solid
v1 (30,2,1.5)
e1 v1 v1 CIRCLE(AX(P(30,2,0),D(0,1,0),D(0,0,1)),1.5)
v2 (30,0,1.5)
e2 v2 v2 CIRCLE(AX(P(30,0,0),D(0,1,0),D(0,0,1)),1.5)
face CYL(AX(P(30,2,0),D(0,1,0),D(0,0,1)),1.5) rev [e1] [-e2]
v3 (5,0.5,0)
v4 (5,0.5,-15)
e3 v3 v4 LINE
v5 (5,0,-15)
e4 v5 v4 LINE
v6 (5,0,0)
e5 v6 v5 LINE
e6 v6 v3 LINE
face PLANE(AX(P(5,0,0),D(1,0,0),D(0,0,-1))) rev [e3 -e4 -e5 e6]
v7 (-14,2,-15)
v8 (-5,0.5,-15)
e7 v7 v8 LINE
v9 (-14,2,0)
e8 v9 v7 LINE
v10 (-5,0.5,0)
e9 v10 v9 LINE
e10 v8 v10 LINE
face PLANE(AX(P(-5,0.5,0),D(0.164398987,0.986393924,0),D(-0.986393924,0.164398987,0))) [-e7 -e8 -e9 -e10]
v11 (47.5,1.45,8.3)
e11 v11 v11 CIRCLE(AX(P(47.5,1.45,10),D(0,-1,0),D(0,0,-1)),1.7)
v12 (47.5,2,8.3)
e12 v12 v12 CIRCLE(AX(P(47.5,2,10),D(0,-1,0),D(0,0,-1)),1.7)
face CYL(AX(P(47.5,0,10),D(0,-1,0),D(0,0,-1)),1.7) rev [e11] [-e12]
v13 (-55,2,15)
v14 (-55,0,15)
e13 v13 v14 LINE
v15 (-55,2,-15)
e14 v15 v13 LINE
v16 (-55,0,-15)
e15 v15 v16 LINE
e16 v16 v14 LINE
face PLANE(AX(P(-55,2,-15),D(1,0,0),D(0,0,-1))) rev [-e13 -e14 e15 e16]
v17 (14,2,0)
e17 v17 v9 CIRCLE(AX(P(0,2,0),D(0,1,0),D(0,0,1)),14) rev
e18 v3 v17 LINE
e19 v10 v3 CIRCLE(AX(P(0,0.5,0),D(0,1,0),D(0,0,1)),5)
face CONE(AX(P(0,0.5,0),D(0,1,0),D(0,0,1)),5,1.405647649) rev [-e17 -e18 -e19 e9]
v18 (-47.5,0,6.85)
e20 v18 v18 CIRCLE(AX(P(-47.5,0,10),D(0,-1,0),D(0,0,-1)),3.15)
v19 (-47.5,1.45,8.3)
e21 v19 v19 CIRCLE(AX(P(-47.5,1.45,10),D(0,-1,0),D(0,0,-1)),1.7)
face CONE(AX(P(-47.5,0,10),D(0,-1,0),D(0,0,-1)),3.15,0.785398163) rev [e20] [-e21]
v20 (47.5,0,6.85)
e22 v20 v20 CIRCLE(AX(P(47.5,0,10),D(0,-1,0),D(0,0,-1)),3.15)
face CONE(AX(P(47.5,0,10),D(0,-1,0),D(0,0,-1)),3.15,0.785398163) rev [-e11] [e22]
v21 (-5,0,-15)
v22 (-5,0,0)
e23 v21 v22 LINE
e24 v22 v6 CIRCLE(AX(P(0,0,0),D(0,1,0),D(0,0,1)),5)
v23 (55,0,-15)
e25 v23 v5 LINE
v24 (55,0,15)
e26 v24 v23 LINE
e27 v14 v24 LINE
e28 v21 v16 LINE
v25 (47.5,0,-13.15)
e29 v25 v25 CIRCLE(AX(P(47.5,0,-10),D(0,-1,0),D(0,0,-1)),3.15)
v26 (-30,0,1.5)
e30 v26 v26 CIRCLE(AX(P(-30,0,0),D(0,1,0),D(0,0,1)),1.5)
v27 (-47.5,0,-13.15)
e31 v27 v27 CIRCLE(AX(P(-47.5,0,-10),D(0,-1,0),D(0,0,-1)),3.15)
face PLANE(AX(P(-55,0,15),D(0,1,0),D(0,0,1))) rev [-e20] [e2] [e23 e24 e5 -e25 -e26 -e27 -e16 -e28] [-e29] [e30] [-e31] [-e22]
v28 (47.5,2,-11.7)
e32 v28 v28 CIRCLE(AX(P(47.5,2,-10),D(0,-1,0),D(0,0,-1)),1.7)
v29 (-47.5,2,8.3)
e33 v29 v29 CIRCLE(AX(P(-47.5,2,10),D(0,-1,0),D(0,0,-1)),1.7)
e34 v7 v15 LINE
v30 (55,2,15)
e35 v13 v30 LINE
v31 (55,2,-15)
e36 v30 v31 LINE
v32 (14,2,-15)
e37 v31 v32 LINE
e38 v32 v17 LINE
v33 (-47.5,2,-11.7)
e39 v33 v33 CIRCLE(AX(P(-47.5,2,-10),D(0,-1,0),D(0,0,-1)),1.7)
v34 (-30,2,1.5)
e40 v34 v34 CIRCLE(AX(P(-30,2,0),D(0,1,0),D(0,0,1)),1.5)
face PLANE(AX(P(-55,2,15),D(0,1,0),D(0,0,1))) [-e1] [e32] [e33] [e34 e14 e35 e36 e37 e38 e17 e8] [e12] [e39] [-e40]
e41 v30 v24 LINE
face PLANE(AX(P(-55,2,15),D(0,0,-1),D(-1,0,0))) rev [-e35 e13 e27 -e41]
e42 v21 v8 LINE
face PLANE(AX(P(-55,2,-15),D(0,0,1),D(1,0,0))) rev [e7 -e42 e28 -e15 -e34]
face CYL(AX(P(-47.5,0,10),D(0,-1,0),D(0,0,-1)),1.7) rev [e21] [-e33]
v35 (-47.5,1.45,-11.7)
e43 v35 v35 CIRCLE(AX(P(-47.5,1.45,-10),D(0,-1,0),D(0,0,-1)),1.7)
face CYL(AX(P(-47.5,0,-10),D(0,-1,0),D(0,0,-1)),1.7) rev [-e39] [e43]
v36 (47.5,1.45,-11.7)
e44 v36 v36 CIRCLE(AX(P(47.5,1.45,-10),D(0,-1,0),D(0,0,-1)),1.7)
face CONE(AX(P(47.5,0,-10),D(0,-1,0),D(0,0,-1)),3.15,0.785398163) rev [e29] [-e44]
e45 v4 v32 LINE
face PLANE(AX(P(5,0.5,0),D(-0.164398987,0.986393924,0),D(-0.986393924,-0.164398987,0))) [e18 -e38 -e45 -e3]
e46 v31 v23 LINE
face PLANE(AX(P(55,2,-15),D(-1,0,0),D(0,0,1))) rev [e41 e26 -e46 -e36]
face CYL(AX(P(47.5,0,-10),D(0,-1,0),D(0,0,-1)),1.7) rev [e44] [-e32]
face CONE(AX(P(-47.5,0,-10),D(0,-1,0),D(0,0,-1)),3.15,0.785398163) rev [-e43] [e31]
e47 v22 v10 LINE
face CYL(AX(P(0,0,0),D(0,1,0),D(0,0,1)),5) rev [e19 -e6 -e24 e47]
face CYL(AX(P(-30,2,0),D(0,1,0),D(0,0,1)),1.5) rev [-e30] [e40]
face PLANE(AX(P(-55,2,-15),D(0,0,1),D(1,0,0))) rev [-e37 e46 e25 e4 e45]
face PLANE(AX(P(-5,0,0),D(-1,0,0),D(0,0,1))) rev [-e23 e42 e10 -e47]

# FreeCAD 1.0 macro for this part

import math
import FreeCAD as App
import Part
import Sketcher
Q = App.Units.Quantity


def edges_at(feature, points):
    """Names of the edges that pass closest to the given points."""
    edges = feature.Shape.Edges
    near = lambda p: min(range(len(edges)), key=lambda i: edges[i].distToShape(Part.Vertex(*p))[0])
    return sorted({f"Edge{near(p) + 1}" for p in points})

doc = App.newDocument("Part")
body = doc.addObject("PartDesign::Body", "Body")

# Sketch on XZ plane
sketch1 = doc.addObject("Sketcher::SketchObject", "Sketch")
body.addObject(sketch1)
sketch1.AttachmentSupport = (doc.XZ_Plane, [""])
sketch1.MapMode = "FlatFace"
sketch1.addGeometry([
    Part.LineSegment(App.Vector(-55, -15, 0), App.Vector(-55, 15, 0)),
    Part.LineSegment(App.Vector(-55, 15, 0), App.Vector(55, 15, 0)),
    Part.LineSegment(App.Vector(55, 15, 0), App.Vector(55, -15, 0)),
    Part.LineSegment(App.Vector(55, -15, 0), App.Vector(-55, -15, 0)),
], False)
sketch1.addConstraint([
    Sketcher.Constraint("Coincident", 0, 2, 1, 1),
    Sketcher.Constraint("Coincident", 1, 2, 2, 1),
    Sketcher.Constraint("Coincident", 2, 2, 3, 1),
    Sketcher.Constraint("Coincident", 3, 2, 0, 1),
    Sketcher.Constraint("Vertical", 0),
    Sketcher.Constraint("Horizontal", 1),
    Sketcher.Constraint("Vertical", 2),
    Sketcher.Constraint("Horizontal", 3),
    Sketcher.Constraint("Symmetric", 0, 2, 2, 2, -1, 1),
    Sketcher.Constraint("DistanceX", 1, 1, 1, 2, 110.0),
    Sketcher.Constraint("DistanceY", 0, 1, 0, 2, 30.0),
])
pad1 = doc.addObject("PartDesign::Pad", "Pad")
body.addObject(pad1)
pad1.Profile = sketch1
pad1.Length = 2
pad1.Reversed = True

# Sketch on XZ plane
sketch2 = doc.addObject("Sketcher::SketchObject", "Sketch001")
body.addObject(sketch2)
sketch2.AttachmentSupport = (doc.XZ_Plane, [""])
sketch2.MapMode = "FlatFace"
sketch2.AttachmentOffset = App.Placement(App.Vector(0, 0, -2), App.Rotation())
sketch2.addGeometry([
    Part.LineSegment(App.Vector(-5, -15, 0), App.Vector(-5, 0, 0)),
    Part.ArcOfCircle(Part.Circle(App.Vector(0, 0, 0), App.Vector(0, 0, 1), 5), math.radians(0), math.radians(180)),
    Part.LineSegment(App.Vector(5, 0, 0), App.Vector(5, -15, 0)),
    Part.LineSegment(App.Vector(5, -15, 0), App.Vector(-5, -15, 0)),
], False)
sketch2.addConstraint([
    Sketcher.Constraint("Tangent", 0, 2, 1, 2),
    Sketcher.Constraint("Tangent", 1, 1, 2, 1),
    Sketcher.Constraint("Coincident", 2, 2, 3, 1),
    Sketcher.Constraint("Coincident", 3, 2, 0, 1),
    Sketcher.Constraint("Vertical", 0),
    Sketcher.Constraint("Vertical", 2),
    Sketcher.Constraint("Horizontal", 3),
    Sketcher.Constraint("Coincident", 1, 3, -1, 1),
    Sketcher.Constraint("Radius", 1, 5.0),
    Sketcher.Constraint("DistanceY", 0, 1, 0, 2, 15.0),
])
pocket1 = doc.addObject("PartDesign::Pocket", "Pocket")
body.addObject(pocket1)
pocket1.Profile = sketch2
pocket1.Type = "ThroughAll"
pocket1.Reversed = True
doc.recompute()

chamfer = doc.addObject("PartDesign::Chamfer", "Chamfer")
body.addObject(chamfer)
chamfer.Base = (pocket1, edges_at(pocket1, [(0, 2, 5), (5, 2, -7.5), (-5, 2, -7.5)]))
chamfer.ChamferType = "Two distances"
chamfer.Size = 9
chamfer.Size2 = 1.5

# Sketch on YZ plane
sketch3 = doc.addObject("Sketcher::SketchObject", "Sketch002")
body.addObject(sketch3)
sketch3.AttachmentSupport = (doc.YZ_Plane, [""])
sketch3.MapMode = "FlatFace"
sketch3.AttachmentOffset = App.Placement(App.Vector(0, 0, 47.5), App.Rotation())
sketch3.addGeometry([
    Part.LineSegment(App.Vector(2, -10, 0), App.Vector(0, -10, 0)),  # 0
    Part.LineSegment(App.Vector(0, -10, 0), App.Vector(0, -13.2, 0)),  # 1
    Part.LineSegment(App.Vector(0, -13.2, 0), App.Vector(1.4, -11.7, 0)),  # 2
    Part.LineSegment(App.Vector(1.4, -11.7, 0), App.Vector(2, -11.7, 0)),  # 3
    Part.LineSegment(App.Vector(2, -11.7, 0), App.Vector(2, -10, 0)),  # 4
], False)
sketch3.addGeometry(Part.LineSegment(App.Vector(0, -10, 0), App.Vector(2, -10, 0)), True)  # axis
sketch3.addConstraint([
    Sketcher.Constraint("Coincident", 0, 2, 1, 1),
    Sketcher.Constraint("Coincident", 1, 2, 2, 1),
    Sketcher.Constraint("Coincident", 2, 2, 3, 1),
    Sketcher.Constraint("Coincident", 3, 2, 4, 1),
    Sketcher.Constraint("Coincident", 4, 2, 0, 1),
    Sketcher.Constraint("Horizontal", 0),
    Sketcher.Constraint("Vertical", 1),
    Sketcher.Constraint("Horizontal", 3),
    Sketcher.Constraint("Vertical", 4),
    Sketcher.Constraint("Horizontal", 5),
    Sketcher.Constraint("Coincident", 5, 1, 0, 2),
    Sketcher.Constraint("PointOnObject", 0, 2, -2),
    Sketcher.Constraint("Vertical", 3, 2, 5, 2),
    Sketcher.Constraint("DistanceX", 0, 2, 0, 1, 2.0),
    Sketcher.Constraint("Angle", 2, Q("45 deg")),
    Sketcher.Constraint("DistanceY", 4, 1, 4, 2, 1.7),
    Sketcher.Constraint("DistanceY", 0, 2, -1, 1, 10.0),
    Sketcher.Constraint("DistanceX", 3, 1, 3, 2, 0.55),
])
groove = doc.addObject("PartDesign::Groove", "Groove")
body.addObject(groove)
groove.Profile = sketch3
groove.ReferenceAxis = (sketch3, ["Axis0"])
groove.Angle = 360
doc.recompute()

linearpattern = doc.addObject("PartDesign::LinearPattern", "LinearPattern")
body.addObject(linearpattern)
linearpattern.Originals = [groove]
linearpattern.Direction = (doc.X_Axis, [""])
linearpattern.Mode = "offset"
linearpattern.Offset = 95
linearpattern.Occurrences = 2
linearpattern.Reversed = True
body.Tip = linearpattern
doc.recompute()

datumline = doc.addObject("PartDesign::Line", "DatumLine")
body.addObject(datumline)
datumline.Placement = App.Placement(App.Vector(0, 0, 0), App.Rotation(App.Vector(0, 0, 1), App.Vector(-0.978549785, 0, 0.206010481)))
linearpattern2 = doc.addObject("PartDesign::LinearPattern", "LinearPattern001")
body.addObject(linearpattern2)
linearpattern2.Originals = [groove]
linearpattern2.Direction = (datumline, [""])
linearpattern2.Mode = "offset"
linearpattern2.Offset = 97.082439
linearpattern2.Occurrences = 2
body.Tip = linearpattern2
doc.recompute()

linearpattern3 = doc.addObject("PartDesign::LinearPattern", "LinearPattern002")
body.addObject(linearpattern3)
linearpattern3.Originals = [groove]
linearpattern3.Direction = (doc.Z_Axis, [""])
linearpattern3.Mode = "offset"
linearpattern3.Offset = 20
linearpattern3.Occurrences = 2
body.Tip = linearpattern3

# Sketch on XZ plane
sketch4 = doc.addObject("Sketcher::SketchObject", "Sketch003")
body.addObject(sketch4)
sketch4.AttachmentSupport = (doc.XZ_Plane, [""])
sketch4.MapMode = "FlatFace"
sketch4.AttachmentOffset = App.Placement(App.Vector(0, 0, -2), App.Rotation())
sketch4.addGeometry([
    Part.Circle(App.Vector(30, 0, 0), App.Vector(0, 0, 1), 1.5),
    Part.Circle(App.Vector(-30, 0, 0), App.Vector(0, 0, 1), 1.5),
], False)
sketch4.addConstraint([
    Sketcher.Constraint("Equal", 0, 1),
    Sketcher.Constraint("Symmetric", 0, 3, 1, 3, -1, 1),
    Sketcher.Constraint("PointOnObject", 0, 3, -1),
    Sketcher.Constraint("Diameter", 0, 3.0),
    Sketcher.Constraint("DistanceX", -1, 1, 0, 3, 30.0),
])
doc.recompute()
hole = doc.addObject("PartDesign::Hole", "Hole")
body.addObject(hole)
hole.Profile = sketch4
hole.ThreadType = "None"
hole.Diameter = 3
hole.DepthType = "ThroughAll"
hole.Reversed = True

doc.recompute()
